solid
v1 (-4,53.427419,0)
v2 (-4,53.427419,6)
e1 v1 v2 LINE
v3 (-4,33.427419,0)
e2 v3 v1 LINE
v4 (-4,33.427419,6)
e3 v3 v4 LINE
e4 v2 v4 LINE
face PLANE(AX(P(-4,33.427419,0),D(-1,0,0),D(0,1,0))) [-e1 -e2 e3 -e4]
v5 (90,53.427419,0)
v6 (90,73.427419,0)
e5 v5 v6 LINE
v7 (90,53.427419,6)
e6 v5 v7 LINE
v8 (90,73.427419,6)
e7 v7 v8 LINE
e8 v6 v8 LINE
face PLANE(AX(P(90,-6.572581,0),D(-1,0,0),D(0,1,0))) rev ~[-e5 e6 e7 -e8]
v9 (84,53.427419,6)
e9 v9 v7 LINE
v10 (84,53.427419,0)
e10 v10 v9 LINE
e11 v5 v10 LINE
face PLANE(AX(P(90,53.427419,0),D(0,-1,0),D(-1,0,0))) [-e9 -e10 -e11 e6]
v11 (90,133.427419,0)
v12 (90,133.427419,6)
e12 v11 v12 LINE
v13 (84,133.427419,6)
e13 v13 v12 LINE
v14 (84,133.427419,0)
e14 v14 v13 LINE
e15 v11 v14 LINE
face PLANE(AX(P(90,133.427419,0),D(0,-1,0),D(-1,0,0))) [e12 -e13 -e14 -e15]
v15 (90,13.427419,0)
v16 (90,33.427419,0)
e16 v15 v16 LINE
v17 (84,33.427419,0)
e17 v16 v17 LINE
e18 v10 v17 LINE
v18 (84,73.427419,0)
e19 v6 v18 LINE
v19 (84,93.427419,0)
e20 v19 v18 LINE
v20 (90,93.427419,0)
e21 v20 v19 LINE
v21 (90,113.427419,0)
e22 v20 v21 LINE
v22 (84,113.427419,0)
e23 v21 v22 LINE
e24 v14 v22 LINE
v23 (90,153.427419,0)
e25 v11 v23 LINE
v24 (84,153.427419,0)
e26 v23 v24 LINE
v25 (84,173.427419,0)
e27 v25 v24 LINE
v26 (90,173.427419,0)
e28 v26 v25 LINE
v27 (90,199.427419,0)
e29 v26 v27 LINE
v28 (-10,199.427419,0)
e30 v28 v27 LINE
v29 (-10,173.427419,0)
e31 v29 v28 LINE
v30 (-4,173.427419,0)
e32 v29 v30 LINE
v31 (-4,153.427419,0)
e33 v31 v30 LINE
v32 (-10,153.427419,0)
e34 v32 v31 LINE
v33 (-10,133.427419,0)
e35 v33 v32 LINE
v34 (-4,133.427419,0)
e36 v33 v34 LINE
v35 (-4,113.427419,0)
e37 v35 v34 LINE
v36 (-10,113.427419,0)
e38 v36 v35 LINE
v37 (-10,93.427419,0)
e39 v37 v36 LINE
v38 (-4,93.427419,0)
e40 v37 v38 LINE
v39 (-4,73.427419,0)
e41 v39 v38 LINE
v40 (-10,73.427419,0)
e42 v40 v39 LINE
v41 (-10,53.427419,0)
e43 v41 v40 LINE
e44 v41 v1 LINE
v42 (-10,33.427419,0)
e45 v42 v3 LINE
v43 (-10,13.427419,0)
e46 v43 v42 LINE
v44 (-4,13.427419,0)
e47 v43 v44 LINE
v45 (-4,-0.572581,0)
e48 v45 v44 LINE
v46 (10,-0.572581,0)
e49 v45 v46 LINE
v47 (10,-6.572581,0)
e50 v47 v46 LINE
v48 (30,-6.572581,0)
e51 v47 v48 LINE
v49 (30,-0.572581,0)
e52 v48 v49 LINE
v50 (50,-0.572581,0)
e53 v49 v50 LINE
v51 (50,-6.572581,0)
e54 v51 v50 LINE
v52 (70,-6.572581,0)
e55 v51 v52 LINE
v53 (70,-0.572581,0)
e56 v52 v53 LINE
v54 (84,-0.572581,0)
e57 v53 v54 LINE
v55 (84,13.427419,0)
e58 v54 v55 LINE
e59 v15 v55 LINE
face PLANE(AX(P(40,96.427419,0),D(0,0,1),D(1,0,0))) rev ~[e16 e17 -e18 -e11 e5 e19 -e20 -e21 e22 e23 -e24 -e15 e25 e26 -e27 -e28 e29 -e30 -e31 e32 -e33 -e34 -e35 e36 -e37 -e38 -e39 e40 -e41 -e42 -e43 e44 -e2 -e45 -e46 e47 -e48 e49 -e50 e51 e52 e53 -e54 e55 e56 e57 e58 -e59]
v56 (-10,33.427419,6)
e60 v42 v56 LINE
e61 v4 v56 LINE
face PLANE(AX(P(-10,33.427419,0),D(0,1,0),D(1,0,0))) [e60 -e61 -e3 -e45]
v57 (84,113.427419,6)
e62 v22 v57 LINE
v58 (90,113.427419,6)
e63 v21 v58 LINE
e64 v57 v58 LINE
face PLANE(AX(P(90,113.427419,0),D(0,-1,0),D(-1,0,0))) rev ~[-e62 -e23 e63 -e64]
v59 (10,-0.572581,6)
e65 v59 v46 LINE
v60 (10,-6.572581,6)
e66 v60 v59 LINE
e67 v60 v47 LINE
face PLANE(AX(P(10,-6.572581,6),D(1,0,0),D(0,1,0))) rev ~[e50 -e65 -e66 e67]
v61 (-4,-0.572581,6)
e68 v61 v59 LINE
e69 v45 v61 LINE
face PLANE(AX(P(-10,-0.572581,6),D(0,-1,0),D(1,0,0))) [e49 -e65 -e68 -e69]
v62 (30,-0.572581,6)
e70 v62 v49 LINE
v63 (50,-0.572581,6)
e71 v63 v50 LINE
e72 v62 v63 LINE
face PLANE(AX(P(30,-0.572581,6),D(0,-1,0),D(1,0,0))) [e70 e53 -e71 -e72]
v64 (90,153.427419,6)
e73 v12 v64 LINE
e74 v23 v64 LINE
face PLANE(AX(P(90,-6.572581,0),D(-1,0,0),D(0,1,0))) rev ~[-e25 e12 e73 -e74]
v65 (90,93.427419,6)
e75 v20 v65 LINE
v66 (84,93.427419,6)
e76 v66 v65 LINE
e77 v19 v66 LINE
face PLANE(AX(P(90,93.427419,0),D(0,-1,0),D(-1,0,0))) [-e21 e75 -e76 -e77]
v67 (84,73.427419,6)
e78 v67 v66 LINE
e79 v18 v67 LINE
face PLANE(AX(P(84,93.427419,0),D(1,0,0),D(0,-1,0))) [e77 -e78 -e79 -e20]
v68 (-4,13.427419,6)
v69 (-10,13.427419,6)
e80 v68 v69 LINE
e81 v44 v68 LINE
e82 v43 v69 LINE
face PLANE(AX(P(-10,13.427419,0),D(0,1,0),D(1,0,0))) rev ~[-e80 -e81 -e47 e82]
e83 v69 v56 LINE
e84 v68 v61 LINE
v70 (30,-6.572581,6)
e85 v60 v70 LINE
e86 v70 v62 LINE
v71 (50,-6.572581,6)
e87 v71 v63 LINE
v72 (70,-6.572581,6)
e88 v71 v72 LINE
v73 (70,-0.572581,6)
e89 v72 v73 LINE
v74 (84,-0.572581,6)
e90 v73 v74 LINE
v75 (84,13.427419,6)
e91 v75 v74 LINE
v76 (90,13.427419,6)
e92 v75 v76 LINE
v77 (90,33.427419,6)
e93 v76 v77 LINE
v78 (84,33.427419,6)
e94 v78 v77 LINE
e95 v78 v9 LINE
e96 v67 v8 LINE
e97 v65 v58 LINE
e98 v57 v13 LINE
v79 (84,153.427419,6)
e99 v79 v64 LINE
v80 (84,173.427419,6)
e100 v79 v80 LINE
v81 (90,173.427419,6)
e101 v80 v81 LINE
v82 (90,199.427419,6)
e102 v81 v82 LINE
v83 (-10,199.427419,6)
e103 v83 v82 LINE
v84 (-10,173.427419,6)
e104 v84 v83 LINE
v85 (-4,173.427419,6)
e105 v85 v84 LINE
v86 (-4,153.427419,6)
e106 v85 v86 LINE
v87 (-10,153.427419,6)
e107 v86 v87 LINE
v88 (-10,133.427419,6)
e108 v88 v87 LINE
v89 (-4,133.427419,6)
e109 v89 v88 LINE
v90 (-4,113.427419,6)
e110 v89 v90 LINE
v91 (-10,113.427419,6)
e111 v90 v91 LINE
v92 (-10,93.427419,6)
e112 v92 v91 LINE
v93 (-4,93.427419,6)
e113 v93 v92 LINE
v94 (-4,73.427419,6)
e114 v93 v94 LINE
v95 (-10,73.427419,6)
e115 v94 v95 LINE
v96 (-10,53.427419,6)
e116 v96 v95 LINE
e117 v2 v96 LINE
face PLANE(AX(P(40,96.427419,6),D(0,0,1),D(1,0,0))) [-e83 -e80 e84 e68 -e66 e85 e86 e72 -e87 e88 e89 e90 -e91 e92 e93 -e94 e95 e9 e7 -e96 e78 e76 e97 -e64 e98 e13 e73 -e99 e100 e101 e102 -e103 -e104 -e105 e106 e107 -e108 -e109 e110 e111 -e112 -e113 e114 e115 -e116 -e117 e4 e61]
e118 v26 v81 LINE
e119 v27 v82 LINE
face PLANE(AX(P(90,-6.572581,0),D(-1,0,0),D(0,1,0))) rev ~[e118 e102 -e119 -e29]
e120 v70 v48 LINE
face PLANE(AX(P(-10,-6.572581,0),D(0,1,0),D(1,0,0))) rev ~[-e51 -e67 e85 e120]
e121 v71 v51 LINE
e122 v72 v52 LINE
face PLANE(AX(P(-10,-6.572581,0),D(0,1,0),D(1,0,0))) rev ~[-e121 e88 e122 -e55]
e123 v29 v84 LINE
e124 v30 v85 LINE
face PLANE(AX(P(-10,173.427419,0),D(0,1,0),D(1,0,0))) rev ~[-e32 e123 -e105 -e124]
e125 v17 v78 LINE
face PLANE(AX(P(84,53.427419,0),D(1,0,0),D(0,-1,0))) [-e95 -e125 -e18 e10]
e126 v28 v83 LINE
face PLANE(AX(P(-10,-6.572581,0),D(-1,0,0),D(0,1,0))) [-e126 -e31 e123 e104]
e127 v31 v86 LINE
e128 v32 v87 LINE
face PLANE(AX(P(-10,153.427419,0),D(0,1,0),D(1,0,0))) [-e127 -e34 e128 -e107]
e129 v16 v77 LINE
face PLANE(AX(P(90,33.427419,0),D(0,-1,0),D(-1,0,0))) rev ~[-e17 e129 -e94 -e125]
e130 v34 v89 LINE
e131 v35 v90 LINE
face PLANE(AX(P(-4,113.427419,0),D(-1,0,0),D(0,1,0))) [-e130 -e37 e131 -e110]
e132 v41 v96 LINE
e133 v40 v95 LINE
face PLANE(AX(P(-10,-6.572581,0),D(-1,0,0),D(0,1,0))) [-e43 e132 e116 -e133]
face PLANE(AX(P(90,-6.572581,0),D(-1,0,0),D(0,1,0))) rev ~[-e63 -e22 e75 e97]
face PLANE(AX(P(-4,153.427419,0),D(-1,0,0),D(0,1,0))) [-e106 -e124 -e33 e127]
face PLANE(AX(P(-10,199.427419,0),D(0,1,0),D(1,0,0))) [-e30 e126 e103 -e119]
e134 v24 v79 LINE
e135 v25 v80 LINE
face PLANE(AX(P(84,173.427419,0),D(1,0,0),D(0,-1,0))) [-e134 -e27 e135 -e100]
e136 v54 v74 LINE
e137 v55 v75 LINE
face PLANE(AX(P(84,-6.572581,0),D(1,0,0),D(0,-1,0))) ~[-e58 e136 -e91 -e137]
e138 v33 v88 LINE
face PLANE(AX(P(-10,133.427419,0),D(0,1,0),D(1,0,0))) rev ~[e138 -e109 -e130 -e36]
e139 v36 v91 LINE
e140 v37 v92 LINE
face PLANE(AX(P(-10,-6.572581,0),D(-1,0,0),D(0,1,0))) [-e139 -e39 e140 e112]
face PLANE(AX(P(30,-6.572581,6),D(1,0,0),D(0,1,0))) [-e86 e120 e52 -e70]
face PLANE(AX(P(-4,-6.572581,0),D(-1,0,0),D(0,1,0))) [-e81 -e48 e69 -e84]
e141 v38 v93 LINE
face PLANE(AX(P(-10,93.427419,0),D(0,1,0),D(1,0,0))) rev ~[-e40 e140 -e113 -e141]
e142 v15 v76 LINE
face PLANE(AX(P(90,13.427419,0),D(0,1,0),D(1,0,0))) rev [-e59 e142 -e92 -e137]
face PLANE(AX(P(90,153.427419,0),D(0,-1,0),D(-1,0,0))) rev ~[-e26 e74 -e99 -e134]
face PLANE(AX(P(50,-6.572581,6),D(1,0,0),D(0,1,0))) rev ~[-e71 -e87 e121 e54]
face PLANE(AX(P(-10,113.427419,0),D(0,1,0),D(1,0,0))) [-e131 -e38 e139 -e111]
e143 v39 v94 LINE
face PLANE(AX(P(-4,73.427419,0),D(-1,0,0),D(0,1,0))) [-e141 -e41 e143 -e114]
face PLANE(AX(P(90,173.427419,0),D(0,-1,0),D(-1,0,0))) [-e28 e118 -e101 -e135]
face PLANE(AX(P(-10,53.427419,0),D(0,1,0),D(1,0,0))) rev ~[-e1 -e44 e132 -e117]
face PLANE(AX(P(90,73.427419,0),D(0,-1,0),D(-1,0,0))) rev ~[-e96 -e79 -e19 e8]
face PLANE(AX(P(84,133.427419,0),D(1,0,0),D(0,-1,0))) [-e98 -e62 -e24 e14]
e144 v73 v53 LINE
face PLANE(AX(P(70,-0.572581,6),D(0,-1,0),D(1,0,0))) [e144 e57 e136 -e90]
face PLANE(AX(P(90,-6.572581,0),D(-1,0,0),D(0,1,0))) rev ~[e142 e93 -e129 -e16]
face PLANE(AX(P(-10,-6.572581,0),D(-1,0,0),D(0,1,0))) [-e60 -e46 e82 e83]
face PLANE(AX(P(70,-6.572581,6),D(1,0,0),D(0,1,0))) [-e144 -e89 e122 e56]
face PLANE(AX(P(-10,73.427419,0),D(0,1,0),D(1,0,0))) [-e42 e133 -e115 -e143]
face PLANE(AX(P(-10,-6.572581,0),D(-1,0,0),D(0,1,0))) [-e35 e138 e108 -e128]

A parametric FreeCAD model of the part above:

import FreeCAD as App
import Part
import Sketcher

doc = App.newDocument("Part")
body = doc.addObject("PartDesign::Body", "Body")

# Sketch on XY plane
sketch1 = body.newObject("Sketcher::SketchObject", "Sketch")
sketch1.AttachmentSupport = (doc.getObject("XY_Plane"), [""])
sketch1.MapMode = "FlatFace"
sketch1.addGeometry(Part.LineSegment(App.Vector(-10, 199, 0), App.Vector(-10, -7, 0)), False)
sketch1.addGeometry(Part.LineSegment(App.Vector(-10, -7, 0), App.Vector(90, -7, 0)), False)
sketch1.addGeometry(Part.LineSegment(App.Vector(90, -7, 0), App.Vector(90, 199, 0)), False)
sketch1.addGeometry(Part.LineSegment(App.Vector(90, 199, 0), App.Vector(-10, 199, 0)), False)
sketch1.addConstraint(Sketcher.Constraint("Coincident", 0, 2, 1, 1))
sketch1.addConstraint(Sketcher.Constraint("Coincident", 1, 2, 2, 1))
sketch1.addConstraint(Sketcher.Constraint("Coincident", 2, 2, 3, 1))
sketch1.addConstraint(Sketcher.Constraint("Coincident", 3, 2, 0, 1))
sketch1.addConstraint(Sketcher.Constraint("Vertical", 0))
sketch1.addConstraint(Sketcher.Constraint("Horizontal", 1))
sketch1.addConstraint(Sketcher.Constraint("Vertical", 2))
sketch1.addConstraint(Sketcher.Constraint("Horizontal", 3))
sketch1.addConstraint(Sketcher.Constraint("DistanceX", 1, 1, 1, 2, 100.0))
sketch1.addConstraint(Sketcher.Constraint("DistanceY", 0, 2, 0, 1, 206.0))
sketch1.addConstraint(Sketcher.Constraint("DistanceX", 0, 2, -1, 1, 10.0))
sketch1.addConstraint(Sketcher.Constraint("DistanceY", 0, 2, -1, 1, 6.572581))
pad1 = body.newObject("PartDesign::Pad", "Pad")
pad1.Profile = sketch1
pad1.Length = 6

# Sketch on XY plane
sketch2 = body.newObject("Sketcher::SketchObject", "Sketch001")
sketch2.AttachmentSupport = (doc.getObject("XY_Plane"), [""])
sketch2.MapMode = "FlatFace"
sketch2.addGeometry(Part.LineSegment(App.Vector(-10, 13, 0), App.Vector(-10, -7, 0)), False)
sketch2.addGeometry(Part.LineSegment(App.Vector(-10, -7, 0), App.Vector(-4, -7, 0)), False)
sketch2.addGeometry(Part.LineSegment(App.Vector(-4, -7, 0), App.Vector(-4, 13, 0)), False)
sketch2.addGeometry(Part.LineSegment(App.Vector(-4, 13, 0), App.Vector(-10, 13, 0)), False)
sketch2.addConstraint(Sketcher.Constraint("Coincident", 0, 2, 1, 1))
sketch2.addConstraint(Sketcher.Constraint("Coincident", 1, 2, 2, 1))
sketch2.addConstraint(Sketcher.Constraint("Coincident", 2, 2, 3, 1))
sketch2.addConstraint(Sketcher.Constraint("Coincident", 3, 2, 0, 1))
sketch2.addConstraint(Sketcher.Constraint("Vertical", 0))
sketch2.addConstraint(Sketcher.Constraint("Horizontal", 1))
sketch2.addConstraint(Sketcher.Constraint("Vertical", 2))
sketch2.addConstraint(Sketcher.Constraint("Horizontal", 3))
sketch2.addConstraint(Sketcher.Constraint("DistanceX", 1, 1, 1, 2, 6.0))
sketch2.addConstraint(Sketcher.Constraint("DistanceY", 0, 2, 0, 1, 20.0))
sketch2.addConstraint(Sketcher.Constraint("DistanceX", 0, 2, -1, 1, 10.0))
sketch2.addConstraint(Sketcher.Constraint("DistanceY", 0, 2, -1, 1, 6.572581))
pocket1 = body.newObject("PartDesign::Pocket", "Pocket")
pocket1.Profile = sketch2
pocket1.Length = 10
pocket1.Reversed = True
doc.recompute()

linearpattern = body.newObject("PartDesign::LinearPattern", "LinearPattern")
linearpattern.Originals = [pocket1]
linearpattern.Direction = (doc.getObject("Y_Axis"), [""])
linearpattern.Mode = "offset"
linearpattern.Offset = 40
linearpattern.Occurrences = 5
body.Tip = linearpattern
doc.recompute()

datumplane = body.newObject("PartDesign::Plane", "DatumPlane")
datumplane.AttachmentSupport = (doc.getObject("YZ_Plane"), [""])
datumplane.MapMode = "FlatFace"
datumplane.AttachmentOffset = App.Placement(App.Vector(0, 0, 40), App.Rotation())
mirrored = body.newObject("PartDesign::Mirrored", "Mirrored")
mirrored.Originals = [pocket1]
mirrored.MirrorPlane = (datumplane, [""])
body.Tip = mirrored

# Sketch on XY plane
sketch3 = body.newObject("Sketcher::SketchObject", "Sketch002")
sketch3.AttachmentSupport = (doc.getObject("XY_Plane"), [""])
sketch3.MapMode = "FlatFace"
sketch3.addGeometry(Part.LineSegment(App.Vector(90, 33, 0), App.Vector(90, 53, 0)), False)
sketch3.addGeometry(Part.LineSegment(App.Vector(90, 53, 0), App.Vector(84, 53, 0)), False)
sketch3.addGeometry(Part.LineSegment(App.Vector(84, 53, 0), App.Vector(84, 33, 0)), False)
sketch3.addGeometry(Part.LineSegment(App.Vector(84, 33, 0), App.Vector(90, 33, 0)), False)
sketch3.addConstraint(Sketcher.Constraint("Coincident", 0, 2, 1, 1))
sketch3.addConstraint(Sketcher.Constraint("Coincident", 1, 2, 2, 1))
sketch3.addConstraint(Sketcher.Constraint("Coincident", 2, 2, 3, 1))
sketch3.addConstraint(Sketcher.Constraint("Coincident", 3, 2, 0, 1))
sketch3.addConstraint(Sketcher.Constraint("Vertical", 0))
sketch3.addConstraint(Sketcher.Constraint("Horizontal", 1))
sketch3.addConstraint(Sketcher.Constraint("Vertical", 2))
sketch3.addConstraint(Sketcher.Constraint("Horizontal", 3))
sketch3.addConstraint(Sketcher.Constraint("DistanceX", 1, 2, 1, 1, 6.0))
sketch3.addConstraint(Sketcher.Constraint("DistanceY", 0, 1, 0, 2, 20.0))
sketch3.addConstraint(Sketcher.Constraint("DistanceX", -1, 1, 0, 2, 90.0))
sketch3.addConstraint(Sketcher.Constraint("DistanceY", -1, 1, 0, 2, 53.427419))
pocket2 = body.newObject("PartDesign::Pocket", "Pocket001")
pocket2.Profile = sketch3
pocket2.Length = 10
pocket2.Reversed = True

# Sketch on XY plane
sketch4 = body.newObject("Sketcher::SketchObject", "Sketch003")
sketch4.AttachmentSupport = (doc.getObject("XY_Plane"), [""])
sketch4.MapMode = "FlatFace"
sketch4.addGeometry(Part.LineSegment(App.Vector(90, 73, 0), App.Vector(90, 93, 0)), False)
sketch4.addGeometry(Part.LineSegment(App.Vector(90, 93, 0), App.Vector(84, 93, 0)), False)
sketch4.addGeometry(Part.LineSegment(App.Vector(84, 93, 0), App.Vector(84, 73, 0)), False)
sketch4.addGeometry(Part.LineSegment(App.Vector(84, 73, 0), App.Vector(90, 73, 0)), False)
sketch4.addConstraint(Sketcher.Constraint("Coincident", 0, 2, 1, 1))
sketch4.addConstraint(Sketcher.Constraint("Coincident", 1, 2, 2, 1))
sketch4.addConstraint(Sketcher.Constraint("Coincident", 2, 2, 3, 1))
sketch4.addConstraint(Sketcher.Constraint("Coincident", 3, 2, 0, 1))
sketch4.addConstraint(Sketcher.Constraint("Vertical", 0))
sketch4.addConstraint(Sketcher.Constraint("Horizontal", 1))
sketch4.addConstraint(Sketcher.Constraint("Vertical", 2))
sketch4.addConstraint(Sketcher.Constraint("Horizontal", 3))
sketch4.addConstraint(Sketcher.Constraint("DistanceX", 1, 2, 1, 1, 6.0))
sketch4.addConstraint(Sketcher.Constraint("DistanceY", 0, 1, 0, 2, 20.0))
sketch4.addConstraint(Sketcher.Constraint("DistanceX", -1, 1, 0, 2, 90.0))
sketch4.addConstraint(Sketcher.Constraint("DistanceY", -1, 1, 0, 2, 93.427419))
pocket3 = body.newObject("PartDesign::Pocket", "Pocket002")
pocket3.Profile = sketch4
pocket3.Length = 10
pocket3.Reversed = True

# Sketch on XY plane
sketch5 = body.newObject("Sketcher::SketchObject", "Sketch004")
sketch5.AttachmentSupport = (doc.getObject("XY_Plane"), [""])
sketch5.MapMode = "FlatFace"
sketch5.addGeometry(Part.LineSegment(App.Vector(90, 113, 0), App.Vector(90, 133, 0)), False)
sketch5.addGeometry(Part.LineSegment(App.Vector(90, 133, 0), App.Vector(84, 133, 0)), False)
sketch5.addGeometry(Part.LineSegment(App.Vector(84, 133, 0), App.Vector(84, 113, 0)), False)
sketch5.addGeometry(Part.LineSegment(App.Vector(84, 113, 0), App.Vector(90, 113, 0)), False)
sketch5.addConstraint(Sketcher.Constraint("Coincident", 0, 2, 1, 1))
sketch5.addConstraint(Sketcher.Constraint("Coincident", 1, 2, 2, 1))
sketch5.addConstraint(Sketcher.Constraint("Coincident", 2, 2, 3, 1))
sketch5.addConstraint(Sketcher.Constraint("Coincident", 3, 2, 0, 1))
sketch5.addConstraint(Sketcher.Constraint("Vertical", 0))
sketch5.addConstraint(Sketcher.Constraint("Horizontal", 1))
sketch5.addConstraint(Sketcher.Constraint("Vertical", 2))
sketch5.addConstraint(Sketcher.Constraint("Horizontal", 3))
sketch5.addConstraint(Sketcher.Constraint("DistanceX", 1, 2, 1, 1, 6.0))
sketch5.addConstraint(Sketcher.Constraint("DistanceY", 0, 1, 0, 2, 20.0))
sketch5.addConstraint(Sketcher.Constraint("DistanceX", -1, 1, 0, 2, 90.0))
sketch5.addConstraint(Sketcher.Constraint("DistanceY", -1, 1, 0, 2, 133.427419))
pocket4 = body.newObject("PartDesign::Pocket", "Pocket003")
pocket4.Profile = sketch5
pocket4.Length = 10
pocket4.Reversed = True

# Sketch on XY plane
sketch6 = body.newObject("Sketcher::SketchObject", "Sketch005")
sketch6.AttachmentSupport = (doc.getObject("XY_Plane"), [""])
sketch6.MapMode = "FlatFace"
sketch6.addGeometry(Part.LineSegment(App.Vector(90, 153, 0), App.Vector(90, 173, 0)), False)
sketch6.addGeometry(Part.LineSegment(App.Vector(90, 173, 0), App.Vector(84, 173, 0)), False)
sketch6.addGeometry(Part.LineSegment(App.Vector(84, 173, 0), App.Vector(84, 153, 0)), False)
sketch6.addGeometry(Part.LineSegment(App.Vector(84, 153, 0), App.Vector(90, 153, 0)), False)
sketch6.addConstraint(Sketcher.Constraint("Coincident", 0, 2, 1, 1))
sketch6.addConstraint(Sketcher.Constraint("Coincident", 1, 2, 2, 1))
sketch6.addConstraint(Sketcher.Constraint("Coincident", 2, 2, 3, 1))
sketch6.addConstraint(Sketcher.Constraint("Coincident", 3, 2, 0, 1))
sketch6.addConstraint(Sketcher.Constraint("Vertical", 0))
sketch6.addConstraint(Sketcher.Constraint("Horizontal", 1))
sketch6.addConstraint(Sketcher.Constraint("Vertical", 2))
sketch6.addConstraint(Sketcher.Constraint("Horizontal", 3))
sketch6.addConstraint(Sketcher.Constraint("DistanceX", 1, 2, 1, 1, 6.0))
sketch6.addConstraint(Sketcher.Constraint("DistanceY", 0, 1, 0, 2, 20.0))
sketch6.addConstraint(Sketcher.Constraint("DistanceX", -1, 1, 0, 2, 90.0))
sketch6.addConstraint(Sketcher.Constraint("DistanceY", -1, 1, 0, 2, 173.427419))
pocket5 = body.newObject("PartDesign::Pocket", "Pocket004")
pocket5.Profile = sketch6
pocket5.Length = 10
pocket5.Reversed = True

# Sketch on XY plane
sketch7 = body.newObject("Sketcher::SketchObject", "Sketch006")
sketch7.AttachmentSupport = (doc.getObject("XY_Plane"), [""])
sketch7.MapMode = "FlatFace"
sketch7.AttachmentOffset = App.Placement(App.Vector(0, 0, 6), App.Rotation())
sketch7.addGeometry(Part.LineSegment(App.Vector(-10, -1, 0), App.Vector(-10, -7, 0)), False)
sketch7.addGeometry(Part.LineSegment(App.Vector(-10, -7, 0), App.Vector(10, -7, 0)), False)
sketch7.addGeometry(Part.LineSegment(App.Vector(10, -7, 0), App.Vector(10, -1, 0)), False)
sketch7.addGeometry(Part.LineSegment(App.Vector(10, -1, 0), App.Vector(-10, -1, 0)), False)
sketch7.addConstraint(Sketcher.Constraint("Coincident", 0, 2, 1, 1))
sketch7.addConstraint(Sketcher.Constraint("Coincident", 1, 2, 2, 1))
sketch7.addConstraint(Sketcher.Constraint("Coincident", 2, 2, 3, 1))
sketch7.addConstraint(Sketcher.Constraint("Coincident", 3, 2, 0, 1))
sketch7.addConstraint(Sketcher.Constraint("Vertical", 0))
sketch7.addConstraint(Sketcher.Constraint("Horizontal", 1))
sketch7.addConstraint(Sketcher.Constraint("Vertical", 2))
sketch7.addConstraint(Sketcher.Constraint("Horizontal", 3))
sketch7.addConstraint(Sketcher.Constraint("DistanceX", 1, 1, 1, 2, 20.0))
sketch7.addConstraint(Sketcher.Constraint("DistanceY", 0, 2, 0, 1, 6.0))
sketch7.addConstraint(Sketcher.Constraint("DistanceX", 0, 2, -1, 1, 10.0))
sketch7.addConstraint(Sketcher.Constraint("DistanceY", 0, 2, -1, 1, 6.572581))
pocket6 = body.newObject("PartDesign::Pocket", "Pocket005")
pocket6.Profile = sketch7
pocket6.Length = 10
doc.recompute()

linearpattern2 = body.newObject("PartDesign::LinearPattern", "LinearPattern001")
linearpattern2.Originals = [pocket6]
linearpattern2.Direction = (doc.getObject("X_Axis"), [""])
linearpattern2.Mode = "offset"
linearpattern2.Offset = 40
linearpattern2.Occurrences = 3
body.Tip = linearpattern2

doc.recompute()
